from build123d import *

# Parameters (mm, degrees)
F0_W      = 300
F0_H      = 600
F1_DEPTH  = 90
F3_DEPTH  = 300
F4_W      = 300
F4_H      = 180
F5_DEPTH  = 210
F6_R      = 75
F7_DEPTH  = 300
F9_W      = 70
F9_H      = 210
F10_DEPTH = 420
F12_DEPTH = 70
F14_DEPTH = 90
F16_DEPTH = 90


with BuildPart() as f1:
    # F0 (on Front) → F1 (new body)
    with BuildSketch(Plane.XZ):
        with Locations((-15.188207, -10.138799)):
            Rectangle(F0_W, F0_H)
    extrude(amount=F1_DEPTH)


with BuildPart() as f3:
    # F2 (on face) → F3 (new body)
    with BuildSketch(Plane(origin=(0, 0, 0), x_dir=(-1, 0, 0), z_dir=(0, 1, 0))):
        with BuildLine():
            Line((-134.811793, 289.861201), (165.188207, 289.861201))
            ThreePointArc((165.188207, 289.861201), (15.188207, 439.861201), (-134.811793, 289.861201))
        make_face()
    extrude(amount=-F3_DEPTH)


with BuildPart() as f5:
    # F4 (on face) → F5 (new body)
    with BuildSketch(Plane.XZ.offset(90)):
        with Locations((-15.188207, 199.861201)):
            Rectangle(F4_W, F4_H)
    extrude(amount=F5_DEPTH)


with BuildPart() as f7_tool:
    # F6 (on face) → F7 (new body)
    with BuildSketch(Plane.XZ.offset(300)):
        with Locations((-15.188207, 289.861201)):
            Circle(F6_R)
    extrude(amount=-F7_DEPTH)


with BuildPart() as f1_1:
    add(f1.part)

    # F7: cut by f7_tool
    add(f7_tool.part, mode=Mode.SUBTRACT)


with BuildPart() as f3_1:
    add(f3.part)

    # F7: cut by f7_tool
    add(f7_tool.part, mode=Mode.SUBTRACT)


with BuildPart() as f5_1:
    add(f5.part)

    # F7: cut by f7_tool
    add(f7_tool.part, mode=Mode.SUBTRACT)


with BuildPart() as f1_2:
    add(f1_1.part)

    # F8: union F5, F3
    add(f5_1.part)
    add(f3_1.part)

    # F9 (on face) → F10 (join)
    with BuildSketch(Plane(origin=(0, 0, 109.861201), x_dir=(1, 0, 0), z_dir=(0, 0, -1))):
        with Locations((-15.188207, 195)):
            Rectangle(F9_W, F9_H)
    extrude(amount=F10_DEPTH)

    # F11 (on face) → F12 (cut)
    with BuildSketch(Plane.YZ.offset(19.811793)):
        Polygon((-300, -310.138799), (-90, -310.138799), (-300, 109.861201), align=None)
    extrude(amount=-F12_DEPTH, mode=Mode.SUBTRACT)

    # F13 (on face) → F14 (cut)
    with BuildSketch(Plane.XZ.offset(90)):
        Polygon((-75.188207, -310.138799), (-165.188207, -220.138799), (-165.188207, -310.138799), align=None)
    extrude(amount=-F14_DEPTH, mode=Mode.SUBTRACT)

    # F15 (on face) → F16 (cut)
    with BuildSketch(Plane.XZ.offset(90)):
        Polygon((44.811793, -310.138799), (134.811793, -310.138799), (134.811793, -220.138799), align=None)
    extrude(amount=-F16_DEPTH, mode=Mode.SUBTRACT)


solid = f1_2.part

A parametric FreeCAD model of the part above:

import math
import FreeCAD as App
import Part
import Sketcher

doc = App.newDocument("Part")
body = doc.addObject("PartDesign::Body", "Body")

# Sketch on XZ plane
sketch1 = doc.addObject("Sketcher::SketchObject", "Sketch")
body.addObject(sketch1)
sketch1.AttachmentSupport = (doc.XZ_Plane, [""])
sketch1.MapMode = "FlatFace"
sketch1.addGeometry([
    Part.LineSegment(App.Vector(-165, 290, 0), App.Vector(-165, -310, 0)),
    Part.LineSegment(App.Vector(-165, -310, 0), App.Vector(135, -310, 0)),
    Part.LineSegment(App.Vector(135, -310, 0), App.Vector(135, 290, 0)),
    Part.LineSegment(App.Vector(135, 290, 0), App.Vector(-165, 290, 0)),
], False)
sketch1.addConstraint([
    Sketcher.Constraint("Coincident", 0, 2, 1, 1),
    Sketcher.Constraint("Coincident", 1, 2, 2, 1),
    Sketcher.Constraint("Coincident", 2, 2, 3, 1),
    Sketcher.Constraint("Coincident", 3, 2, 0, 1),
    Sketcher.Constraint("Vertical", 0),
    Sketcher.Constraint("Horizontal", 1),
    Sketcher.Constraint("Vertical", 2),
    Sketcher.Constraint("Horizontal", 3),
    Sketcher.Constraint("DistanceX", 1, 1, 1, 2, 300.0),
    Sketcher.Constraint("DistanceY", 0, 2, 0, 1, 600.0),
    Sketcher.Constraint("DistanceY", 0, 2, -1, 1, 310.138799),
    Sketcher.Constraint("DistanceX", 0, 2, -1, 1, 165.188207),
])
pad1 = doc.addObject("PartDesign::Pad", "Pad")
body.addObject(pad1)
pad1.Profile = sketch1
pad1.Length = 90
body2 = doc.addObject("PartDesign::Body", "Body001")

# Sketch on XZ plane
sketch2 = doc.addObject("Sketcher::SketchObject", "Sketch001")
body2.addObject(sketch2)
sketch2.AttachmentSupport = (doc.getObject("XZ_Plane001"), [""])
sketch2.MapMode = "FlatFace"
sketch2.addGeometry([
    Part.LineSegment(App.Vector(135, 290, 0), App.Vector(-165, 290, 0)),
    Part.ArcOfCircle(Part.Circle(App.Vector(-15, 290, 0), App.Vector(0, 0, 1), 150), math.radians(0), math.radians(180)),
], False)
sketch2.addConstraint([
    Sketcher.Constraint("Coincident", 0, 1, 1, 1),
    Sketcher.Constraint("Coincident", 1, 2, 0, 2),
    Sketcher.Constraint("Horizontal", 0),
    Sketcher.Constraint("Horizontal", 1, 3, 0, 1),
    Sketcher.Constraint("Radius", 1, 150.0),
    Sketcher.Constraint("DistanceY", -1, 1, 1, 3, 289.861201),
    Sketcher.Constraint("DistanceX", 1, 3, -1, 1, 15.188207),
])
pad2 = doc.addObject("PartDesign::Pad", "Pad001")
body2.addObject(pad2)
pad2.Profile = sketch2
pad2.Length = 300
body3 = doc.addObject("PartDesign::Body", "Body002")

# Sketch on XZ plane
sketch3 = doc.addObject("Sketcher::SketchObject", "Sketch002")
body3.addObject(sketch3)
sketch3.AttachmentSupport = (doc.getObject("XZ_Plane002"), [""])
sketch3.MapMode = "FlatFace"
sketch3.AttachmentOffset = App.Placement(App.Vector(0, 0, 90), App.Rotation())
sketch3.addGeometry([
    Part.LineSegment(App.Vector(-165, 290, 0), App.Vector(-165, 110, 0)),
    Part.LineSegment(App.Vector(-165, 110, 0), App.Vector(135, 110, 0)),
    Part.LineSegment(App.Vector(135, 110, 0), App.Vector(135, 290, 0)),
    Part.LineSegment(App.Vector(135, 290, 0), App.Vector(-165, 290, 0)),
], False)
sketch3.addConstraint([
    Sketcher.Constraint("Coincident", 0, 2, 1, 1),
    Sketcher.Constraint("Coincident", 1, 2, 2, 1),
    Sketcher.Constraint("Coincident", 2, 2, 3, 1),
    Sketcher.Constraint("Coincident", 3, 2, 0, 1),
    Sketcher.Constraint("Vertical", 0),
    Sketcher.Constraint("Horizontal", 1),
    Sketcher.Constraint("Vertical", 2),
    Sketcher.Constraint("Horizontal", 3),
    Sketcher.Constraint("DistanceX", 1, 1, 1, 2, 300.0),
    Sketcher.Constraint("DistanceY", 0, 2, 0, 1, 180.0),
    Sketcher.Constraint("DistanceY", -1, 1, 0, 2, 109.861201),
    Sketcher.Constraint("DistanceX", 0, 2, -1, 1, 165.188207),
])
pad3 = doc.addObject("PartDesign::Pad", "Pad002")
body3.addObject(pad3)
pad3.Profile = sketch3
pad3.Length = 210
body4 = doc.addObject("PartDesign::Body", "Body003")

# Sketch on XZ plane
sketch4 = doc.addObject("Sketcher::SketchObject", "Sketch003")
body4.addObject(sketch4)
sketch4.AttachmentSupport = (doc.getObject("XZ_Plane003"), [""])
sketch4.MapMode = "FlatFace"
sketch4.AttachmentOffset = App.Placement(App.Vector(0, 0, 300), App.Rotation())
sketch4.addGeometry(Part.Circle(App.Vector(-15, 290, 0), App.Vector(0, 0, 1), 75), False)
sketch4.addConstraint([
    Sketcher.Constraint("Diameter", 0, 150.0),
    Sketcher.Constraint("DistanceY", -1, 1, 0, 3, 289.861201),
    Sketcher.Constraint("DistanceX", 0, 3, -1, 1, 15.188207),
])
pad4 = doc.addObject("PartDesign::Pad", "Pad003")
body4.addObject(pad4)
pad4.Profile = sketch4
pad4.Length = 300
pad4.Reversed = True
doc.recompute()

body5 = doc.addObject("PartDesign::Body", "Body004")
body5.BaseFeature = body4
boolean = doc.addObject("PartDesign::Boolean", "Boolean")
body.addObject(boolean)
boolean.Type = "Cut"
boolean.addObjects([body5])
doc.recompute()

body6 = doc.addObject("PartDesign::Body", "Body005")
body6.BaseFeature = body4
boolean2 = doc.addObject("PartDesign::Boolean", "Boolean001")
body2.addObject(boolean2)
boolean2.Type = "Cut"
boolean2.addObjects([body6])
doc.recompute()

boolean3 = doc.addObject("PartDesign::Boolean", "Boolean002")
body3.addObject(boolean3)
boolean3.Type = "Cut"
boolean3.addObjects([body4])
doc.recompute()

boolean4 = doc.addObject("PartDesign::Boolean", "Boolean003")
body.addObject(boolean4)
boolean4.Type = "Fuse"
boolean4.addObjects([body3])
doc.recompute()

boolean5 = doc.addObject("PartDesign::Boolean", "Boolean004")
body.addObject(boolean5)
boolean5.Type = "Fuse"
boolean5.addObjects([body2])

# Sketch on XY plane
sketch5 = doc.addObject("Sketcher::SketchObject", "Sketch004")
body.addObject(sketch5)
sketch5.AttachmentSupport = (doc.XY_Plane, [""])
sketch5.MapMode = "FlatFace"
sketch5.AttachmentOffset = App.Placement(App.Vector(0, 0, 109.861201), App.Rotation())
sketch5.addGeometry([
    Part.LineSegment(App.Vector(-50, -300, 0), App.Vector(-50, -90, 0)),
    Part.LineSegment(App.Vector(-50, -90, 0), App.Vector(20, -90, 0)),
    Part.LineSegment(App.Vector(20, -90, 0), App.Vector(20, -300, 0)),
    Part.LineSegment(App.Vector(20, -300, 0), App.Vector(-50, -300, 0)),
], False)
sketch5.addConstraint([
    Sketcher.Constraint("Coincident", 0, 2, 1, 1),
    Sketcher.Constraint("Coincident", 1, 2, 2, 1),
    Sketcher.Constraint("Coincident", 2, 2, 3, 1),
    Sketcher.Constraint("Coincident", 3, 2, 0, 1),
    Sketcher.Constraint("Vertical", 0),
    Sketcher.Constraint("Horizontal", 1),
    Sketcher.Constraint("Vertical", 2),
    Sketcher.Constraint("Horizontal", 3),
    Sketcher.Constraint("DistanceX", 1, 1, 1, 2, 70.0),
    Sketcher.Constraint("DistanceY", 0, 1, 0, 2, 210.0),
    Sketcher.Constraint("DistanceY", 0, 2, -1, 1, 90.0),
    Sketcher.Constraint("DistanceX", 0, 2, -1, 1, 50.188207),
])
pad5 = doc.addObject("PartDesign::Pad", "Pad004")
body.addObject(pad5)
pad5.Profile = sketch5
pad5.Length = 420
pad5.Reversed = True

# Sketch on YZ plane
sketch6 = doc.addObject("Sketcher::SketchObject", "Sketch005")
body.addObject(sketch6)
sketch6.AttachmentSupport = (doc.YZ_Plane, [""])
sketch6.MapMode = "FlatFace"
sketch6.AttachmentOffset = App.Placement(App.Vector(0, 0, 19.811793), App.Rotation())
sketch6.addGeometry([
    Part.LineSegment(App.Vector(-300, -310, 0), App.Vector(-90, -310, 0)),
    Part.LineSegment(App.Vector(-90, -310, 0), App.Vector(-300, 110, 0)),
    Part.LineSegment(App.Vector(-300, 110, 0), App.Vector(-300, -310, 0)),
], False)
sketch6.addConstraint([
    Sketcher.Constraint("Coincident", 0, 2, 1, 1),
    Sketcher.Constraint("Coincident", 1, 2, 2, 1),
    Sketcher.Constraint("Coincident", 2, 2, 0, 1),
    Sketcher.Constraint("Horizontal", 0),
    Sketcher.Constraint("Vertical", 2),
    Sketcher.Constraint("DistanceX", 0, 1, 0, 2, 210.0),
    Sketcher.Constraint("DistanceY", 2, 2, 2, 1, 420.0),
    Sketcher.Constraint("DistanceX", 0, 2, -1, 1, 90.0),
    Sketcher.Constraint("DistanceY", 0, 2, -1, 1, 310.138799),
])
pocket1 = doc.addObject("PartDesign::Pocket", "Pocket")
body.addObject(pocket1)
pocket1.Profile = sketch6
pocket1.Length = 70

# Sketch on XZ plane
sketch7 = doc.addObject("Sketcher::SketchObject", "Sketch006")
body.addObject(sketch7)
sketch7.AttachmentSupport = (doc.XZ_Plane, [""])
sketch7.MapMode = "FlatFace"
sketch7.AttachmentOffset = App.Placement(App.Vector(0, 0, 90), App.Rotation())
sketch7.addGeometry([
    Part.LineSegment(App.Vector(-75, -310, 0), App.Vector(-165, -220, 0)),
    Part.LineSegment(App.Vector(-165, -220, 0), App.Vector(-165, -310, 0)),
    Part.LineSegment(App.Vector(-165, -310, 0), App.Vector(-75, -310, 0)),
], False)
sketch7.addConstraint([
    Sketcher.Constraint("Coincident", 0, 2, 1, 1),
    Sketcher.Constraint("Coincident", 1, 2, 2, 1),
    Sketcher.Constraint("Coincident", 2, 2, 0, 1),
    Sketcher.Constraint("Vertical", 1),
    Sketcher.Constraint("Horizontal", 2),
    Sketcher.Constraint("Equal", 2, 1),
    Sketcher.Constraint("DistanceX", 2, 1, 2, 2, 90.0),
    Sketcher.Constraint("DistanceY", 0, 2, -1, 1, 220.138799),
    Sketcher.Constraint("DistanceX", 0, 2, -1, 1, 165.188207),
])
pocket2 = doc.addObject("PartDesign::Pocket", "Pocket001")
body.addObject(pocket2)
pocket2.Profile = sketch7
pocket2.Length = 90

# Sketch on XZ plane
sketch8 = doc.addObject("Sketcher::SketchObject", "Sketch007")
body.addObject(sketch8)
sketch8.AttachmentSupport = (doc.XZ_Plane, [""])
sketch8.MapMode = "FlatFace"
sketch8.AttachmentOffset = App.Placement(App.Vector(0, 0, 90), App.Rotation())
sketch8.addGeometry([
    Part.LineSegment(App.Vector(45, -310, 0), App.Vector(135, -310, 0)),
    Part.LineSegment(App.Vector(135, -310, 0), App.Vector(135, -220, 0)),
    Part.LineSegment(App.Vector(135, -220, 0), App.Vector(45, -310, 0)),
], False)
sketch8.addConstraint([
    Sketcher.Constraint("Coincident", 0, 2, 1, 1),
    Sketcher.Constraint("Coincident", 1, 2, 2, 1),
    Sketcher.Constraint("Coincident", 2, 2, 0, 1),
    Sketcher.Constraint("Horizontal", 0),
    Sketcher.Constraint("Vertical", 1),
    Sketcher.Constraint("Equal", 0, 1),
    Sketcher.Constraint("DistanceX", 0, 1, 0, 2, 90.0),
    Sketcher.Constraint("DistanceY", 0, 2, -1, 1, 310.138799),
    Sketcher.Constraint("DistanceX", -1, 1, 0, 2, 134.811793),
])
pocket3 = doc.addObject("PartDesign::Pocket", "Pocket002")
body.addObject(pocket3)
pocket3.Profile = sketch8
pocket3.Length = 90

doc.recompute()
